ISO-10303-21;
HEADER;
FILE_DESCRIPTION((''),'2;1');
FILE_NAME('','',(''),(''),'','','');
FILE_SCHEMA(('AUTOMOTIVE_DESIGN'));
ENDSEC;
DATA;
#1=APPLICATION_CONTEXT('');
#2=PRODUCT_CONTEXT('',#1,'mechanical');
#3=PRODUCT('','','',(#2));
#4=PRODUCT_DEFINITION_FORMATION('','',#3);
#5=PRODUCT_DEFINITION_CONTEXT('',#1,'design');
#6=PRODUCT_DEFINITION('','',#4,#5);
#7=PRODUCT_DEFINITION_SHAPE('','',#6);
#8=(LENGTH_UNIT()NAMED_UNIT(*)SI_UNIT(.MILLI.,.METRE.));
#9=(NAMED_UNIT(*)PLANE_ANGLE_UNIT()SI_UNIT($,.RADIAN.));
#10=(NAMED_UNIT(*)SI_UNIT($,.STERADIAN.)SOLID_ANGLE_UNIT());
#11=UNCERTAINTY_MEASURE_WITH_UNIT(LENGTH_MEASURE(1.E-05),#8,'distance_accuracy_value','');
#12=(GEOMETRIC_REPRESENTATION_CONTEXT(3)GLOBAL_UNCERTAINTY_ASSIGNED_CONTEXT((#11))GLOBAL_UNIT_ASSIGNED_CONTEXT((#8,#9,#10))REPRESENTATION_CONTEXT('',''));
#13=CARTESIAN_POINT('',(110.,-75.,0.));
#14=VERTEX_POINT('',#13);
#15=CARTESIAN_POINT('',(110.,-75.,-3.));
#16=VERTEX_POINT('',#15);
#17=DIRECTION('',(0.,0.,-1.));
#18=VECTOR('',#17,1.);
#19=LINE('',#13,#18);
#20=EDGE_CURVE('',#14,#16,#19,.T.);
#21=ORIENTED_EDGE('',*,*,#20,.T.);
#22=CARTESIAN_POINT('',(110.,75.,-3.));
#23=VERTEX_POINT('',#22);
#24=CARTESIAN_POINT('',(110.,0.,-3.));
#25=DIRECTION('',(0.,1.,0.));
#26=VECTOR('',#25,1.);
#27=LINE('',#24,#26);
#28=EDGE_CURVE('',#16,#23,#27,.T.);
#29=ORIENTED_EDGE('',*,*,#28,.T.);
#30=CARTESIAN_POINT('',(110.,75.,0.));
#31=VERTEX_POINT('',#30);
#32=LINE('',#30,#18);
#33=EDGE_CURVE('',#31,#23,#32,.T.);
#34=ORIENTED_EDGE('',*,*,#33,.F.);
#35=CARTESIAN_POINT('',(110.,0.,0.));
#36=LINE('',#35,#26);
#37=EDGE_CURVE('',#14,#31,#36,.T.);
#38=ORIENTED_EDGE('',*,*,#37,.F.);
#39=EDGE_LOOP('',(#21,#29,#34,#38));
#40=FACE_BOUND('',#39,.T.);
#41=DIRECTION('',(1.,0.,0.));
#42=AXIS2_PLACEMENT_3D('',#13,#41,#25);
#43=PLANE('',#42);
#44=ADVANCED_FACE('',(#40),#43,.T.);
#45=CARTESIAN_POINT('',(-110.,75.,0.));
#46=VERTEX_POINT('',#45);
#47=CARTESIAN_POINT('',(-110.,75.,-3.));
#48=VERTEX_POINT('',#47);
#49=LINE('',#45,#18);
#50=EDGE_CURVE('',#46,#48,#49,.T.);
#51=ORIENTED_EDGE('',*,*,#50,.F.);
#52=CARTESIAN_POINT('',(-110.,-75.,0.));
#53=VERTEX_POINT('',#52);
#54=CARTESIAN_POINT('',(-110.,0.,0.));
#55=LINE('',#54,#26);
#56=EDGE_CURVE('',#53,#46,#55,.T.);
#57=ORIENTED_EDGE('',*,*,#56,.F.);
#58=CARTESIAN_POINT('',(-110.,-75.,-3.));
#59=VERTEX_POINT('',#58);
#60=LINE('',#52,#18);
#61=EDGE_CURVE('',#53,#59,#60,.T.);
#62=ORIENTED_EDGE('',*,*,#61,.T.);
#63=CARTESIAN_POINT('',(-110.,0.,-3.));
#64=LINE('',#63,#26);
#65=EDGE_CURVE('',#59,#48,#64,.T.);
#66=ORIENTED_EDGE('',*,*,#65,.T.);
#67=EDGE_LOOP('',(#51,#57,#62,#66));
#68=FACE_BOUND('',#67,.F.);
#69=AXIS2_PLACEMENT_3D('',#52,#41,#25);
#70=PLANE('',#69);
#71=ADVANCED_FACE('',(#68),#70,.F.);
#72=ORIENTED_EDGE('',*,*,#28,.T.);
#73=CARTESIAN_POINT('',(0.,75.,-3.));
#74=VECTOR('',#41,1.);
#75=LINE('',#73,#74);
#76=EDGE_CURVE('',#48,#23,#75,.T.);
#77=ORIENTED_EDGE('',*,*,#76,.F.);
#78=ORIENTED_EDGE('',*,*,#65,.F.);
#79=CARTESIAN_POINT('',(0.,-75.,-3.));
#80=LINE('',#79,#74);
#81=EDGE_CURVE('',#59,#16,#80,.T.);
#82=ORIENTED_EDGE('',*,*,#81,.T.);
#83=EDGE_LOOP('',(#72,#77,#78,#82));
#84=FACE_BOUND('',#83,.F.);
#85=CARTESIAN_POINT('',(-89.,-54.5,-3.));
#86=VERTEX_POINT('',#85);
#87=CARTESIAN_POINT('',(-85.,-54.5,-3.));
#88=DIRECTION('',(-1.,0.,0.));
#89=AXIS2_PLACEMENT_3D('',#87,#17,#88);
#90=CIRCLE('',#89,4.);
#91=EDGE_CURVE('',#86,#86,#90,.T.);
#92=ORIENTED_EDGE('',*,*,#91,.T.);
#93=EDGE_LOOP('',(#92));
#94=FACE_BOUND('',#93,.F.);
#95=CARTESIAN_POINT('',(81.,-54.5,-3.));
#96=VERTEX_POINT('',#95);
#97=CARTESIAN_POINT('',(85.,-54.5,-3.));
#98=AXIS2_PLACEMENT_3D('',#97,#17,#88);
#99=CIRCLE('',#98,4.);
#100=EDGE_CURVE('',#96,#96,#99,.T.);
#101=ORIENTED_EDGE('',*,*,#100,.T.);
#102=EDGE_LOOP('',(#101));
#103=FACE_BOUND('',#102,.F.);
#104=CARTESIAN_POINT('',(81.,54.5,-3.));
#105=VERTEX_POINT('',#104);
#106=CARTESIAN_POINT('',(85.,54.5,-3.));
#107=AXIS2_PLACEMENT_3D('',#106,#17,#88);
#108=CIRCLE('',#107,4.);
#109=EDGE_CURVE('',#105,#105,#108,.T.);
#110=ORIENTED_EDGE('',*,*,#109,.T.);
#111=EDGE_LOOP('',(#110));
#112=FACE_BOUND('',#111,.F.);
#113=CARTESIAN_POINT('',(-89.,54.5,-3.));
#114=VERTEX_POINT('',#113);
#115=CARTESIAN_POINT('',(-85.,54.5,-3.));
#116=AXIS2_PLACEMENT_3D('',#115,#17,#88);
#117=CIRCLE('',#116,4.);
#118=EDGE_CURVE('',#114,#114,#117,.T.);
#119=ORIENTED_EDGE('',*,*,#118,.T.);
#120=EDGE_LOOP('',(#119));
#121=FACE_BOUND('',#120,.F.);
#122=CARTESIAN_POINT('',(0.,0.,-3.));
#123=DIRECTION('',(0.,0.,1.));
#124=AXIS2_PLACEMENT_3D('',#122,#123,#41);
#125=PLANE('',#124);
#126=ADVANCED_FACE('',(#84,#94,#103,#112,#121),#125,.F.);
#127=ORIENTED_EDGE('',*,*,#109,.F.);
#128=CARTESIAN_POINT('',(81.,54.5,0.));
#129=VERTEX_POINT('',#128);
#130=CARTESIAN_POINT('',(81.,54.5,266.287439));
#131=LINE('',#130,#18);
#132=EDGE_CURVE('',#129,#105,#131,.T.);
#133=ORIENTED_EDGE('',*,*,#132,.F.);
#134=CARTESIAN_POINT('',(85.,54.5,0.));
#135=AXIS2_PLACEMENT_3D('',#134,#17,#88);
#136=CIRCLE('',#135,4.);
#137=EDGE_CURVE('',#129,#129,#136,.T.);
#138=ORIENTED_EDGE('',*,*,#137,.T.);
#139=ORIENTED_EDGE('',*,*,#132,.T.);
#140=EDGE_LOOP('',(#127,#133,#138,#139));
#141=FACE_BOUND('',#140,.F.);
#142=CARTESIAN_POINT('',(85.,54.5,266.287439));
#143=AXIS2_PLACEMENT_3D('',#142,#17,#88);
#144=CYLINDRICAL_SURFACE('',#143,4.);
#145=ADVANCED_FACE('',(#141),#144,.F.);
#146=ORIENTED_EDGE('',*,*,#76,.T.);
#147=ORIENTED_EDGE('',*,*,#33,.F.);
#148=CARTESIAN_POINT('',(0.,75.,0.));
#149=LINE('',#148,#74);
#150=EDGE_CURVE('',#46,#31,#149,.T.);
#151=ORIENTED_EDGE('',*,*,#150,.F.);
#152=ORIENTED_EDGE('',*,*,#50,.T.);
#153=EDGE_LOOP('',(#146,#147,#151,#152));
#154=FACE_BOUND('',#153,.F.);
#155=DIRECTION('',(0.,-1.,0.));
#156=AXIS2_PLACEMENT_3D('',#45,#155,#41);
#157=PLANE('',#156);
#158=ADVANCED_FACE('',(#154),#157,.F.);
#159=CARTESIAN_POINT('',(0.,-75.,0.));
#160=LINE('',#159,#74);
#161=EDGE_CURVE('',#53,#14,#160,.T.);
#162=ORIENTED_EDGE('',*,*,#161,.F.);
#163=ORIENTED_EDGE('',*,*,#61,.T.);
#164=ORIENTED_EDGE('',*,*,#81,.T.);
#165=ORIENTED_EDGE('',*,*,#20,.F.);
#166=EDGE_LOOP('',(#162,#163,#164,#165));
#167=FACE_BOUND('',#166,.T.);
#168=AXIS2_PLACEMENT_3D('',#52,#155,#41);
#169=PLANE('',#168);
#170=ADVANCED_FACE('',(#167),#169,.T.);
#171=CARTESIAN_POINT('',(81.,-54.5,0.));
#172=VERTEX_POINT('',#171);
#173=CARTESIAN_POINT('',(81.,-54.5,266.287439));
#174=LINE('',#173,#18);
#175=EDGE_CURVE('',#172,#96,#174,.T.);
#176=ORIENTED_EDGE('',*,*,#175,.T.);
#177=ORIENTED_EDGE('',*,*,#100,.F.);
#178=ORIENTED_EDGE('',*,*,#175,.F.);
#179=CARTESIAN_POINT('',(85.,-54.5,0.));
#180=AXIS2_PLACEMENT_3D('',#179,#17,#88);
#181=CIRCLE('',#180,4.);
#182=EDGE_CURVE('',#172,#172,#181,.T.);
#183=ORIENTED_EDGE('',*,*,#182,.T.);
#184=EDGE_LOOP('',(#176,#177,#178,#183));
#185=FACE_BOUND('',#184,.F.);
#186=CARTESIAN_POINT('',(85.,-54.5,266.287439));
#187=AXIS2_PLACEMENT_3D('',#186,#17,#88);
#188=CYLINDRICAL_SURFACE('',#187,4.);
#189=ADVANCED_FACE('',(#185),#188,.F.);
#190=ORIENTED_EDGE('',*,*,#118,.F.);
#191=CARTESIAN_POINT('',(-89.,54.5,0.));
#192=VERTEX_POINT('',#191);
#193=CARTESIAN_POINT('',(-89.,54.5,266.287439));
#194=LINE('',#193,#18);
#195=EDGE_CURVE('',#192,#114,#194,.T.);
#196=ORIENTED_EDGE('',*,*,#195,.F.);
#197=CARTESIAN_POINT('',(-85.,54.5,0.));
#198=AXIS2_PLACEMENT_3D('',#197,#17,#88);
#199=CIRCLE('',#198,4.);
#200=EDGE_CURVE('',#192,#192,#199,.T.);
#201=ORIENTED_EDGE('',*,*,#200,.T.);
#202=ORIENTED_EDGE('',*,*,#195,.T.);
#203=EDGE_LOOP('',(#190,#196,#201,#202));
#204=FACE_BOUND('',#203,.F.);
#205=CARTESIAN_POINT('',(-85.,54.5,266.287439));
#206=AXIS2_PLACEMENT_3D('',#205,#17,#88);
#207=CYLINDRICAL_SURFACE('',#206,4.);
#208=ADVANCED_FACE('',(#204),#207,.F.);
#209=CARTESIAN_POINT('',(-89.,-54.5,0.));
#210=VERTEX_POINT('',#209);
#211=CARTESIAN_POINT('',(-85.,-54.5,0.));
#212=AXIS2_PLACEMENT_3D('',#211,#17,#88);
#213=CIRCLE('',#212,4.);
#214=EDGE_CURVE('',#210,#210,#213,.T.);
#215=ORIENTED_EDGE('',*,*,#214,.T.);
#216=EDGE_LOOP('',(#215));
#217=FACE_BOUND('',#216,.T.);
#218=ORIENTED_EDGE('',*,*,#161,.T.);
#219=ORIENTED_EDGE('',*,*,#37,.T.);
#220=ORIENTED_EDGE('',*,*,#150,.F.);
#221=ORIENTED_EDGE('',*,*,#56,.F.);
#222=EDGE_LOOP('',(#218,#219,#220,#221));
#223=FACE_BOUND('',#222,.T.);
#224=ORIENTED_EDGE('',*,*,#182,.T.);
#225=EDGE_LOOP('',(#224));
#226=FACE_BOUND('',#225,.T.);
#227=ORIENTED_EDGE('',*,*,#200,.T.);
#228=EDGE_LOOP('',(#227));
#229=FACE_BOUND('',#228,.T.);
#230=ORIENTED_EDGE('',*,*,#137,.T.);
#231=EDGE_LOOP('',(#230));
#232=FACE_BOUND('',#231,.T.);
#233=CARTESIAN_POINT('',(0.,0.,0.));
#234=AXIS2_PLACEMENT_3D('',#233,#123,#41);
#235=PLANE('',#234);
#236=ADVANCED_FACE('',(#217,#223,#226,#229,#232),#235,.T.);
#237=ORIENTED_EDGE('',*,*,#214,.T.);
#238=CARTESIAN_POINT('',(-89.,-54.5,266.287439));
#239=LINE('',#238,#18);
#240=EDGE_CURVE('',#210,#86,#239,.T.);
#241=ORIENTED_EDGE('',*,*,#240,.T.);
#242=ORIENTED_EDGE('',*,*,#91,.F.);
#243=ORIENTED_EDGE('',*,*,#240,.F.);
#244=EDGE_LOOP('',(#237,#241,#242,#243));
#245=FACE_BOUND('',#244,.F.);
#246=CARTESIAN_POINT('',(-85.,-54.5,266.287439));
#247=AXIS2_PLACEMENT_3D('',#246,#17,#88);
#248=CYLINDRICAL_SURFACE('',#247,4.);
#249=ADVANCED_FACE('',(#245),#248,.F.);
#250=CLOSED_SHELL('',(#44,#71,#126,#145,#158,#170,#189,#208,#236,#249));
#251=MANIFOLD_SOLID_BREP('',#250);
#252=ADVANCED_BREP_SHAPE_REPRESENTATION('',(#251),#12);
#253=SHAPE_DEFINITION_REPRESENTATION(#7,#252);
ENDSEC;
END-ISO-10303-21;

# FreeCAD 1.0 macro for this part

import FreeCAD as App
import Part
import Sketcher
Q = App.Units.Quantity

doc = App.newDocument("Part")
body = doc.addObject("PartDesign::Body", "Body")

# Sketch on XY plane
sketch1 = doc.addObject("Sketcher::SketchObject", "Sketch")
body.addObject(sketch1)
sketch1.AttachmentSupport = (doc.XY_Plane, [""])
sketch1.MapMode = "FlatFace"
sketch1.addGeometry([
    Part.LineSegment(App.Vector(-110, 75, 0), App.Vector(-110, -75, 0)),
    Part.LineSegment(App.Vector(-110, -75, 0), App.Vector(110, -75, 0)),
    Part.LineSegment(App.Vector(110, -75, 0), App.Vector(110, 75, 0)),
    Part.LineSegment(App.Vector(110, 75, 0), App.Vector(-110, 75, 0)),
], False)
sketch1.addConstraint([
    Sketcher.Constraint("Coincident", 0, 2, 1, 1),
    Sketcher.Constraint("Coincident", 1, 2, 2, 1),
    Sketcher.Constraint("Coincident", 2, 2, 3, 1),
    Sketcher.Constraint("Coincident", 3, 2, 0, 1),
    Sketcher.Constraint("Vertical", 0),
    Sketcher.Constraint("Horizontal", 1),
    Sketcher.Constraint("Vertical", 2),
    Sketcher.Constraint("Horizontal", 3),
    Sketcher.Constraint("Symmetric", 0, 2, 2, 2, -1, 1),
    Sketcher.Constraint("DistanceX", 1, 1, 1, 2, Q("220 mm")),
    Sketcher.Constraint("DistanceY", 0, 2, 0, 1, Q("150 mm")),
])
pad1 = doc.addObject("PartDesign::Pad", "Pad")
body.addObject(pad1)
pad1.Profile = sketch1
pad1.Length = 3
pad1.Reversed = True

# Sketch on XY plane
sketch2 = doc.addObject("Sketcher::SketchObject", "Sketch001")
body.addObject(sketch2)
sketch2.AttachmentSupport = (doc.XY_Plane, [""])
sketch2.MapMode = "FlatFace"
sketch2.addGeometry([
    Part.Circle(App.Vector(85, -54.5, 0), App.Vector(0, 0, 1), 4),
    Part.Circle(App.Vector(85, 54.5, 0), App.Vector(0, 0, 1), 4),
    Part.Circle(App.Vector(-85, 54.5, 0), App.Vector(0, 0, 1), 4),
    Part.Circle(App.Vector(-85, -54.5, 0), App.Vector(0, 0, 1), 4),
], False)
sketch2.addConstraint([
    Sketcher.Constraint("Equal", 0, 1),
    Sketcher.Constraint("Equal", 1, 2),
    Sketcher.Constraint("Equal", 2, 3),
    Sketcher.Constraint("Symmetric", 0, 3, 2, 3, -1, 1),
    Sketcher.Constraint("Symmetric", 1, 3, 3, 3, -1, 1),
    Sketcher.Constraint("Symmetric", 1, 3, 2, 3, -2),
    Sketcher.Constraint("Diameter", 0, Q("8 mm")),
    Sketcher.Constraint("DistanceX", -1, 1, 0, 3, Q("85 mm")),
    Sketcher.Constraint("DistanceY", 0, 3, 1, 3, Q("109 mm")),
])
doc.recompute()
hole = doc.addObject("PartDesign::Hole", "Hole")
body.addObject(hole)
hole.Profile = sketch2
hole.ThreadType = "None"
hole.Diameter = 8
hole.DepthType = "ThroughAll"

doc.recompute()
